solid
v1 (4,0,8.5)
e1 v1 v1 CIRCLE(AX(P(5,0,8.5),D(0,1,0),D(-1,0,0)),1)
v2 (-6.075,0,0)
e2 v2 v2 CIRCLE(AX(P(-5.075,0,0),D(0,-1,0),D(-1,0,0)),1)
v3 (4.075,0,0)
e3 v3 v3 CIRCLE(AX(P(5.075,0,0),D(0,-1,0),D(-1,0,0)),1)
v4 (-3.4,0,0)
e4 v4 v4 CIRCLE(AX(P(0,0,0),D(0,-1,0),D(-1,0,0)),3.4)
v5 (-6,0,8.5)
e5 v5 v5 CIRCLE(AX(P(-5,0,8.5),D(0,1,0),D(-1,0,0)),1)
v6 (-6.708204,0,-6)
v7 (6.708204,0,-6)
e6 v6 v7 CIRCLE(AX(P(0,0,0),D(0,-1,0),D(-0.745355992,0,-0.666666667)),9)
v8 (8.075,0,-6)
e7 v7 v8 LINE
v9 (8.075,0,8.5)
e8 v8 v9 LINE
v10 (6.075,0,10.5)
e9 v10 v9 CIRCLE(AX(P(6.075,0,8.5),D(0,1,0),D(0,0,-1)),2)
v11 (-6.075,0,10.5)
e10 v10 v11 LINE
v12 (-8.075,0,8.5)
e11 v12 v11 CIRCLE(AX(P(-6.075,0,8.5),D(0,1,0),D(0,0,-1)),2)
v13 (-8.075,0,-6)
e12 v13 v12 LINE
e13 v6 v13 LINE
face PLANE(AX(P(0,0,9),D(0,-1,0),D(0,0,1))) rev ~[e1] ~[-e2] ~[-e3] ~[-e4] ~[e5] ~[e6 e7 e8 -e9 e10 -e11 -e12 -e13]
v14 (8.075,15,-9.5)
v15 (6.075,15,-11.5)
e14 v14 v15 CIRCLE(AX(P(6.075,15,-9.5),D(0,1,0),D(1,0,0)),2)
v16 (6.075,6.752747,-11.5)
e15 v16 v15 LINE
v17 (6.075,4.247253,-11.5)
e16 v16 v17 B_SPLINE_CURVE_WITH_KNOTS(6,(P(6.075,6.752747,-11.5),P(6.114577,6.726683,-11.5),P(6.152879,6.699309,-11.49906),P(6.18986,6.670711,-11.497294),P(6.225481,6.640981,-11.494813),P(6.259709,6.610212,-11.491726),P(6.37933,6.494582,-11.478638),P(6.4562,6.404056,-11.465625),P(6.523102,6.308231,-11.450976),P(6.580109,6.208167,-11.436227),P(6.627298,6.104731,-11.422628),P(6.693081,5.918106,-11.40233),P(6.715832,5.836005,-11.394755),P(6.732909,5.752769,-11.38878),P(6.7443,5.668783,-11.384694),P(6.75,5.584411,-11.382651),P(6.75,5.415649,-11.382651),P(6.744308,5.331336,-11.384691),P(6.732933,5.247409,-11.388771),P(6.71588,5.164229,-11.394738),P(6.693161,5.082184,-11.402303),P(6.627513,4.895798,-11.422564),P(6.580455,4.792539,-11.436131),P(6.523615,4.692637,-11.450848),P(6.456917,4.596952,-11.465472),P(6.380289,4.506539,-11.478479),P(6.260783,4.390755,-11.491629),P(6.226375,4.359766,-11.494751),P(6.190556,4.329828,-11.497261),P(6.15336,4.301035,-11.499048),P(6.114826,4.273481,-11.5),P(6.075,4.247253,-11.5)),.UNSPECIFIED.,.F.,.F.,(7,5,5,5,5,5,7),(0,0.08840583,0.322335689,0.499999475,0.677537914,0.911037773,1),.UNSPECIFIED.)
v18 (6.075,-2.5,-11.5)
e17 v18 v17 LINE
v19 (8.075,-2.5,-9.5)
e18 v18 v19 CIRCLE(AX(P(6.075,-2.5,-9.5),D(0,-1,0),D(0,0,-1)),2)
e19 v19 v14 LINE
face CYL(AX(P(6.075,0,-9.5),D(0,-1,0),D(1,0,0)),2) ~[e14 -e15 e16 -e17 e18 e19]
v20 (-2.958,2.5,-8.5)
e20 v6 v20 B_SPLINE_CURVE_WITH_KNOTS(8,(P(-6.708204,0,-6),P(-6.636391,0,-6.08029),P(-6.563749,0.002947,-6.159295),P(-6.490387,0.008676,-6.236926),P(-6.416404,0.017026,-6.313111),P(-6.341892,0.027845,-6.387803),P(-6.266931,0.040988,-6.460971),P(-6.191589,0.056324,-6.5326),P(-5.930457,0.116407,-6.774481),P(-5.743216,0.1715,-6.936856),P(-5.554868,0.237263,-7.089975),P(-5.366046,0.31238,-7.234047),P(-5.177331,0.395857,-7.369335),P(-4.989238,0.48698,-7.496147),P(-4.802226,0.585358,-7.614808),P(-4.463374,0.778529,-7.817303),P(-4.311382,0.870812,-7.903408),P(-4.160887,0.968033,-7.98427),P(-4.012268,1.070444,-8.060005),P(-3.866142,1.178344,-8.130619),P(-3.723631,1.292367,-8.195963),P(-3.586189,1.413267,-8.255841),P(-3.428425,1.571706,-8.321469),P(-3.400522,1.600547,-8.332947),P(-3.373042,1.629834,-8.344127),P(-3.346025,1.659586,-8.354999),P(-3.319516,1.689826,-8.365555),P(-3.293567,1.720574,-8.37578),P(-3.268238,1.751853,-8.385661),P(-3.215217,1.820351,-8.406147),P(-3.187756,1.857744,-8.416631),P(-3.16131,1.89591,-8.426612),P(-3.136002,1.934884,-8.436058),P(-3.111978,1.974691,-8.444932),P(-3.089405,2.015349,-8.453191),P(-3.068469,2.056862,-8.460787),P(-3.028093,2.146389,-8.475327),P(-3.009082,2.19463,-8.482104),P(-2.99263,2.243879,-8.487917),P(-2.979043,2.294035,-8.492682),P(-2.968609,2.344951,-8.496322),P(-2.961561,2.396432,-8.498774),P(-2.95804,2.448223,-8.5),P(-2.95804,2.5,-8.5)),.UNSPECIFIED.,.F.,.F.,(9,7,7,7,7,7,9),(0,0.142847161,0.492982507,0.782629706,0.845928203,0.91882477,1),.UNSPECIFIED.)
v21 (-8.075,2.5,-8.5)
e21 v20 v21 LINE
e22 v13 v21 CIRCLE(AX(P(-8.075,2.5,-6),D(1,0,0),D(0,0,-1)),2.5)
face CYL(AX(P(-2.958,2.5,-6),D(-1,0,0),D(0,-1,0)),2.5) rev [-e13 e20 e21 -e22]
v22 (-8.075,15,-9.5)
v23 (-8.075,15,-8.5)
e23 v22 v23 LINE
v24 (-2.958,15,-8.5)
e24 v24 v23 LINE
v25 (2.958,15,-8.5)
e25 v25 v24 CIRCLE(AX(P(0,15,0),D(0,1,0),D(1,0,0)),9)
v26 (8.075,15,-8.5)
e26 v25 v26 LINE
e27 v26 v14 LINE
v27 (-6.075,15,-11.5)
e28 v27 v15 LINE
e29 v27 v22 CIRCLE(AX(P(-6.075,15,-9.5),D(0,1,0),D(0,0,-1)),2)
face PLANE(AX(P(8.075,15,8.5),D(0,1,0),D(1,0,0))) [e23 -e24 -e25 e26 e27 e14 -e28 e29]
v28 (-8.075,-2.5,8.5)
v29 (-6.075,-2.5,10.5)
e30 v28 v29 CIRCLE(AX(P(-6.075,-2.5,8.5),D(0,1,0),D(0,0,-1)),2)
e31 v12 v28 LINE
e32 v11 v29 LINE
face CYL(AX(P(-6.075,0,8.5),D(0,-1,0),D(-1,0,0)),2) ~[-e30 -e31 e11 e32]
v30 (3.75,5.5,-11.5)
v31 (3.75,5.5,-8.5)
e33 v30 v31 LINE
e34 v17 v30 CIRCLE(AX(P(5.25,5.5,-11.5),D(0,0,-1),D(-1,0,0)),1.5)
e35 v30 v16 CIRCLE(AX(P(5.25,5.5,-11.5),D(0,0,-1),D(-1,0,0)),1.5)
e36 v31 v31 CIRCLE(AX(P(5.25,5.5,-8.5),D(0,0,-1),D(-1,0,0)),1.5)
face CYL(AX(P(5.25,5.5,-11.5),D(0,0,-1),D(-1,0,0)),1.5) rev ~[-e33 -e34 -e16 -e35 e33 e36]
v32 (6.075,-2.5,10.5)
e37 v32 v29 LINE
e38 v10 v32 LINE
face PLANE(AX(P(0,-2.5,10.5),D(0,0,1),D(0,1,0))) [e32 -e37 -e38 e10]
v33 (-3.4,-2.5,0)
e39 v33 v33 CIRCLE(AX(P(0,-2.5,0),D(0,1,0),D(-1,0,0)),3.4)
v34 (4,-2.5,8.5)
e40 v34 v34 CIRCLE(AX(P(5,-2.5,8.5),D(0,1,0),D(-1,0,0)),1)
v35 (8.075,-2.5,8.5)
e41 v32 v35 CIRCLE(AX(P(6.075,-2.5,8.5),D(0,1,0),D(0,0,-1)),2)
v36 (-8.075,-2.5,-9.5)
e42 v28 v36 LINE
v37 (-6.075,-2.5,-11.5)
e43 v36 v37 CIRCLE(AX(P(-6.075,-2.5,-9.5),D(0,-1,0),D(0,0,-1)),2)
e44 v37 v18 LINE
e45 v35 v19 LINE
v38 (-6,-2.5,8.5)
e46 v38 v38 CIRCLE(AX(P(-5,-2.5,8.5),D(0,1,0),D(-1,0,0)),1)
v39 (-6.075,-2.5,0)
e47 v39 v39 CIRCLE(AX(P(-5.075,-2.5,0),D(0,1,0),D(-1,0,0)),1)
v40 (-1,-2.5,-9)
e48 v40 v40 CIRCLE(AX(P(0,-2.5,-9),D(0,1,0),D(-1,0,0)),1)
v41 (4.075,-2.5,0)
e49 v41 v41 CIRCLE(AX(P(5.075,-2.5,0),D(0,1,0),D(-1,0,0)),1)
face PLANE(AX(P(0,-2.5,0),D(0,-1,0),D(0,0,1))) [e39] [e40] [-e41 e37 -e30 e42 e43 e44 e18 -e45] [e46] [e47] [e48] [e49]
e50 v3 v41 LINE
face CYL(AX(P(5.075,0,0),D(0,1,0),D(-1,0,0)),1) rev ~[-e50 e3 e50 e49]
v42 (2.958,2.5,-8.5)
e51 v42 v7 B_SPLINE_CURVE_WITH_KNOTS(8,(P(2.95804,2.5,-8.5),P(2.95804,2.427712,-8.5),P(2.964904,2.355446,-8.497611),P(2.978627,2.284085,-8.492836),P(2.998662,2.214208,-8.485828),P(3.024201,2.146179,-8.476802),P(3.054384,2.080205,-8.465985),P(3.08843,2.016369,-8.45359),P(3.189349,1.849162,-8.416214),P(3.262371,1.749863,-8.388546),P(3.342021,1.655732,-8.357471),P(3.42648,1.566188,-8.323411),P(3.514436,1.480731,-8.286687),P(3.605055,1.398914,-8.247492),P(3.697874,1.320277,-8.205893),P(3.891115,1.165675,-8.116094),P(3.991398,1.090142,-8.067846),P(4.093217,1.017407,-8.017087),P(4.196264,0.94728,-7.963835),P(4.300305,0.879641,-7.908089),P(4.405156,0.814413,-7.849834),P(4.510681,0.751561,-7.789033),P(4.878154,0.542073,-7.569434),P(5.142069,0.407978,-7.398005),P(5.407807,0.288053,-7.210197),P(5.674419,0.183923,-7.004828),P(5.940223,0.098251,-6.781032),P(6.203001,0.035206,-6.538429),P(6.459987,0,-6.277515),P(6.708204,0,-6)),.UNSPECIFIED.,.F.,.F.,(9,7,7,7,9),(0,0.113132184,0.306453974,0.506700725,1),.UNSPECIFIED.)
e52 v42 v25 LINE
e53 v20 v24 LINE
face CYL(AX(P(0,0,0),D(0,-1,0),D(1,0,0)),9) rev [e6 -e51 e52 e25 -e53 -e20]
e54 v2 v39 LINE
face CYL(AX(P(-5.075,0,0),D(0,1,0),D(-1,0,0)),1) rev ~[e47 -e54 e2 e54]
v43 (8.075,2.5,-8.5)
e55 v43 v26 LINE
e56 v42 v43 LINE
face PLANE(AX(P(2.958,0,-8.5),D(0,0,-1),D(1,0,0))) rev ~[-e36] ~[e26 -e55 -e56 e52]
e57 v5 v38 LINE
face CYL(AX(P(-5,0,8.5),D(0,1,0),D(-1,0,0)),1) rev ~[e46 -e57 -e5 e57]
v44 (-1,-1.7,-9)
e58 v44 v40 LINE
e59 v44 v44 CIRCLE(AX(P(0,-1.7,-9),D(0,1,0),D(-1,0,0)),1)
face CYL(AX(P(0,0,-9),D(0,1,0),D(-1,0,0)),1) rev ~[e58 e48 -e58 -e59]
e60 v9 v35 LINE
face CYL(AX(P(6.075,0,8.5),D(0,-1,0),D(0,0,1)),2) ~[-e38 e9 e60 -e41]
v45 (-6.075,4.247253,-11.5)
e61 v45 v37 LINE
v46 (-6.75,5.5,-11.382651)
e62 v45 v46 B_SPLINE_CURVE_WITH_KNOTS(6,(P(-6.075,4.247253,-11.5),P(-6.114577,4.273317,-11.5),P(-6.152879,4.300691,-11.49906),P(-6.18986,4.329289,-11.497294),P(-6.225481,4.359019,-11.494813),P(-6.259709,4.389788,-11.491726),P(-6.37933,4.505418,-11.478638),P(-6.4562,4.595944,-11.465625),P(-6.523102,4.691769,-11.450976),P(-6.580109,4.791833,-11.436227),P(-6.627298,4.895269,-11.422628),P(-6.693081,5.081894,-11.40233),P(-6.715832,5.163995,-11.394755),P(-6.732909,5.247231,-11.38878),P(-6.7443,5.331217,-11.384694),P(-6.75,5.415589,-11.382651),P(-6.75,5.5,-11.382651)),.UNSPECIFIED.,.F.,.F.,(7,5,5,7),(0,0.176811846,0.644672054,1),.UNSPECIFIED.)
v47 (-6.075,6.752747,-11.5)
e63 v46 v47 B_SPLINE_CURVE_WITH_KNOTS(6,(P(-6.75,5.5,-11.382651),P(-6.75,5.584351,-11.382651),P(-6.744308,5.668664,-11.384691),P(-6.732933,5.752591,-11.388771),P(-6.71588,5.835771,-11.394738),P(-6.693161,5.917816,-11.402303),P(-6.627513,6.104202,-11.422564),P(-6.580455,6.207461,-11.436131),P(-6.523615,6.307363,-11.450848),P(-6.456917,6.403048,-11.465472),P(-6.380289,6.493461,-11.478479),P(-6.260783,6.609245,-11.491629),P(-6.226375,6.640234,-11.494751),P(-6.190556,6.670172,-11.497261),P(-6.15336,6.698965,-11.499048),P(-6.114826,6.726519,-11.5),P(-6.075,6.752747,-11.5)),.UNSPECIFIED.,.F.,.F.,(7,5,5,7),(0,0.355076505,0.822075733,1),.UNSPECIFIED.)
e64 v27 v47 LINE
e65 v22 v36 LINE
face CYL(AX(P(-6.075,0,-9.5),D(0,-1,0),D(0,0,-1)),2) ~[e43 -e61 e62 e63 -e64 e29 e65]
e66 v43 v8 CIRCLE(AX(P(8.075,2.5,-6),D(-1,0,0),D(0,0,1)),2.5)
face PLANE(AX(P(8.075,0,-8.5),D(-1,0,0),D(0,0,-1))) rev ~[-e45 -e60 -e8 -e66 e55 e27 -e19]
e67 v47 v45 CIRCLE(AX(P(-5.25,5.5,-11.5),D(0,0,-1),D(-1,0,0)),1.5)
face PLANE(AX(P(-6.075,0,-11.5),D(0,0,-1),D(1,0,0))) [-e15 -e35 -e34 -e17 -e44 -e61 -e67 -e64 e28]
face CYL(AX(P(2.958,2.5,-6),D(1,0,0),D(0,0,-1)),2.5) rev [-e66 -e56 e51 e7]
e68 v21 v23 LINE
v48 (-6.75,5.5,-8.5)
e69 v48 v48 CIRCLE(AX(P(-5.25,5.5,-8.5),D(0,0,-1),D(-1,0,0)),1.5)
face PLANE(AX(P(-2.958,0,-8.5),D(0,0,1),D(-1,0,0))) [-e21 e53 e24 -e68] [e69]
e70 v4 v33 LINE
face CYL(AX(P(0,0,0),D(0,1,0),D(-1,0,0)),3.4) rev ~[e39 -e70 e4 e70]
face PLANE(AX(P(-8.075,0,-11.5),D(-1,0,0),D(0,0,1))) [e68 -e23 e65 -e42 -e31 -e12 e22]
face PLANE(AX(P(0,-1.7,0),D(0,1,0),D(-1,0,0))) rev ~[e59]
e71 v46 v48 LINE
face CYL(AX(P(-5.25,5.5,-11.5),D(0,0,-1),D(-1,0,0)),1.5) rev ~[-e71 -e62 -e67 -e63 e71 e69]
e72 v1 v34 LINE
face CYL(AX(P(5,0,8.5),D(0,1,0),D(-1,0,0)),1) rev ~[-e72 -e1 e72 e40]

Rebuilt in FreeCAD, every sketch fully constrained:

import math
import FreeCAD as App
import Part
import Sketcher

V = App.Vector
Q = App.Units.Quantity


def edges_at(feature, points):
    """Names of the edges that pass closest to the given points."""
    edges = feature.Shape.Edges
    near = lambda p: min(range(len(edges)), key=lambda i: edges[i].distToShape(Part.Vertex(*p))[0])
    return sorted({f"Edge{near(p) + 1}" for p in points})


def add_polygon(sketch, points):
    """Adds a closed chain of lines whose ends are joined by coincident constraints."""
    first, n = sketch.GeometryCount, len(points)
    for a, b in zip(points, points[1:] + points[:1]):
        sketch.addGeometry(Part.LineSegment(App.Vector(*a, 0), App.Vector(*b, 0)), False)
    for i in range(n):
        sketch.addConstraint(Sketcher.Constraint("Coincident", first + i, 2, first + (i + 1) % n, 1))

doc = App.newDocument("Part")
body = doc.addObject("PartDesign::Body", "Body")

# Sketch on YZ plane
sketch1 = body.newObject("Sketcher::SketchObject", "Sketch")
sketch1.AttachmentSupport = (doc.getObject("YZ_Plane"), [""])
sketch1.MapMode = "FlatFace"
add_polygon(sketch1, [(-2.5, 10.5), (-2.5, -11.5), (0, -11.5), (0, 10.5)])  # lines 0-3
sketch1.addConstraint([
    Sketcher.Constraint("Vertical", 0),
    Sketcher.Constraint("Horizontal", 1),
    Sketcher.Constraint("Vertical", 2),
    Sketcher.Constraint("Horizontal", 3),
    Sketcher.Constraint("PointOnObject", 1, 2, -2),
    Sketcher.Constraint("DistanceX", 1, 1, 1, 2, Q("2.5 mm")),
    Sketcher.Constraint("DistanceY", -1, 1, 2, 2, Q("10.5 mm")),
    Sketcher.Constraint("DistanceY", 0, 2, 0, 1, Q("22 mm")),
])
pad1 = body.newObject("PartDesign::Pad", "Pad")
pad1.Profile = sketch1
pad1.Length = 12.15
pad1.Midplane = True

# Sketch on XZ plane
sketch2 = body.newObject("Sketcher::SketchObject", "Sketch001")
sketch2.AttachmentSupport = (doc.getObject("XZ_Plane"), [""])
sketch2.MapMode = "FlatFace"
add_polygon(sketch2, [(-6.1, -11.5), (-8.1, -11.5), (-8.1, 10.5), (-6.1, 10.5)])  # lines 0-3
add_polygon(sketch2, [(8.1, -11.5), (6.1, -11.5), (6.1, 10.5), (8.1, 10.5)])  # lines 4-7
sketch2.addConstraint([
    Sketcher.Constraint("Horizontal", 0),
    Sketcher.Constraint("Vertical", 1),
    Sketcher.Constraint("Horizontal", 2),
    Sketcher.Constraint("Vertical", 3),
    Sketcher.Constraint("Horizontal", 4),
    Sketcher.Constraint("Vertical", 5),
    Sketcher.Constraint("Horizontal", 6),
    Sketcher.Constraint("Vertical", 7),
    Sketcher.Constraint("Symmetric", 3, 2, 4, 2, -2),
    Sketcher.Constraint("Symmetric", 1, 2, 6, 2, -2),
    Sketcher.Constraint("DistanceX", 0, 2, 0, 1, Q("2 mm")),
    Sketcher.Constraint("DistanceY", 1, 1, 1, 2, Q("22 mm")),
    Sketcher.Constraint("DistanceY", 0, 2, -1, 1, Q("11.5 mm")),
    Sketcher.Constraint("DistanceX", 3, 2, 4, 2, Q("12.15 mm")),
])
pad2 = body.newObject("PartDesign::Pad", "Pad001")
pad2.Profile = sketch2
pad2.Length = 2.5

# Sketch on XZ plane
sketch3 = body.newObject("Sketcher::SketchObject", "Sketch002")
sketch3.AttachmentSupport = (doc.getObject("XZ_Plane"), [""])
sketch3.MapMode = "FlatFace"
sketch3.addGeometry([
    Part.Circle(V(0, -9, 0), V(0, 0, 1), 1),  # 0
    Part.Circle(V(-5.1, 0, 0), V(0, 0, 1), 1),  # 1
    Part.Circle(V(5.1, 0, 0), V(0, 0, 1), 1),  # 2
    Part.Circle(V(0, 0, 0), V(0, 0, 1), 3.4),  # 3
    Part.Circle(V(5, 8.5, 0), V(0, 0, 1), 1),  # 4
    Part.Circle(V(-5, 8.5, 0), V(0, 0, 1), 1),  # 5
], False)
sketch3.addConstraint([
    Sketcher.Constraint("Coincident", 3, 3, -1, 1),
    Sketcher.Constraint("Equal", 0, 1),
    Sketcher.Constraint("Equal", 1, 2),
    Sketcher.Constraint("Equal", 2, 4),
    Sketcher.Constraint("Equal", 4, 5),
    Sketcher.Constraint("Symmetric", 1, 3, 2, 3, -1, 1),
    Sketcher.Constraint("Symmetric", 4, 3, 5, 3, -2),
    Sketcher.Constraint("PointOnObject", 0, 3, -2),
    Sketcher.Constraint("PointOnObject", 1, 3, -1),
    Sketcher.Constraint("Diameter", 0, Q("2 mm")),
    Sketcher.Constraint("Diameter", 3, Q("6.8 mm")),
    Sketcher.Constraint("DistanceY", 0, 3, -1, 1, Q("9 mm")),
    Sketcher.Constraint("DistanceX", 5, 3, 4, 3, Q("10 mm")),
    Sketcher.Constraint("DistanceY", -1, 1, 4, 3, Q("8.5 mm")),
    Sketcher.Constraint("DistanceX", 1, 3, 2, 3, Q("10.15 mm")),
])
pocket1 = body.newObject("PartDesign::Pocket", "Pocket")
pocket1.Profile = sketch3
pocket1.Type = "ThroughAll"
pocket1.Reversed = True
doc.recompute()

fillet = body.newObject("PartDesign::Fillet", "Fillet")
fillet.Base = (pocket1, edges_at(pocket1, [
    (-8.075, -1.25, -11.5),
    (8.075, -1.25, -11.5),
    (8.075, -1.25, 10.5),
    (-8.075, -1.25, 10.5),
]))
fillet.Radius = 2

# Sketch on XZ plane
sketch4 = body.newObject("Sketcher::SketchObject", "Sketch003")
sketch4.AttachmentSupport = (doc.getObject("XZ_Plane"), [""])
sketch4.MapMode = "FlatFace"
sketch4.addGeometry([
    Part.LineSegment(V(3, -8.5, 0), V(8.1, -8.5, 0)),  # 0
    Part.LineSegment(V(8.1, -8.5, 0), V(8.1, -9.5, 0)),  # 1
    Part.ArcOfCircle(Part.Circle(V(6.1, -9.5, 0), V(0, 0, 1), 2), math.radians(-90), math.radians(0)),  # 2
    Part.LineSegment(V(6.1, -11.5, 0), V(-6.1, -11.5, 0)),  # 3
    Part.ArcOfCircle(Part.Circle(V(-6.1, -9.5, 0), V(0, 0, 1), 2), math.radians(180), math.radians(270)),  # 4
    Part.LineSegment(V(-8.1, -9.5, 0), V(-8.1, -8.5, 0)),  # 5
    Part.LineSegment(V(-8.1, -8.5, 0), V(-3, -8.5, 0)),  # 6
    Part.ArcOfCircle(Part.Circle(V(0, 0, 0), V(0, 0, 1), 9), math.radians(-109), math.radians(-71)),  # 7
], False)
sketch4.addConstraint([
    Sketcher.Constraint("Coincident", 0, 2, 1, 1),
    Sketcher.Constraint("Tangent", 1, 2, 2, 2),
    Sketcher.Constraint("Tangent", 2, 1, 3, 1),
    Sketcher.Constraint("Tangent", 3, 2, 4, 2),
    Sketcher.Constraint("Tangent", 4, 1, 5, 1),
    Sketcher.Constraint("Coincident", 5, 2, 6, 1),
    Sketcher.Constraint("Coincident", 6, 2, 7, 1),
    Sketcher.Constraint("Coincident", 7, 2, 0, 1),
    Sketcher.Constraint("Horizontal", 0),
    Sketcher.Constraint("Vertical", 1),
    Sketcher.Constraint("Horizontal", 3),
    Sketcher.Constraint("Vertical", 5),
    Sketcher.Constraint("Horizontal", 6),
    Sketcher.Constraint("Coincident", 7, 3, -1, 1),
    Sketcher.Constraint("Equal", 2, 4),
    Sketcher.Constraint("Symmetric", 0, 2, 5, 2, -2),
    Sketcher.Constraint("Radius", 7, Q("9 mm")),
    Sketcher.Constraint("DistanceY", 1, 2, 1, 1, Q("1 mm")),
    Sketcher.Constraint("Radius", 2, Q("2 mm")),
    Sketcher.Constraint("DistanceX", 3, 2, 3, 1, Q("12.15 mm")),
    Sketcher.Constraint("DistanceY", 2, 3, -1, 1, Q("9.5 mm")),
])
pad3 = body.newObject("PartDesign::Pad", "Pad002")
pad3.Profile = sketch4
pad3.Length = 15
pad3.Reversed = True

# Sketch on XY plane
sketch5 = body.newObject("Sketcher::SketchObject", "Sketch004")
sketch5.AttachmentSupport = (doc.getObject("XY_Plane"), [""])
sketch5.MapMode = "FlatFace"
sketch5.AttachmentOffset = App.Placement(V(0, 0, -11.5), App.Rotation())
sketch5.addGeometry([
    Part.Circle(V(5.2, 5.5, 0), V(0, 0, 1), 1.5),
    Part.Circle(V(-5.2, 5.5, 0), V(0, 0, 1), 1.5),
], False)
sketch5.addConstraint([
    Sketcher.Constraint("Equal", 0, 1),
    Sketcher.Constraint("Symmetric", 0, 3, 1, 3, -2),
    Sketcher.Constraint("Diameter", 0, Q("3 mm")),
    Sketcher.Constraint("DistanceX", 1, 3, 0, 3, Q("10.5 mm")),
    Sketcher.Constraint("DistanceY", -1, 1, 0, 3, Q("5.5 mm")),
])
pocket2 = body.newObject("PartDesign::Pocket", "Pocket001")
pocket2.Profile = sketch5
pocket2.Length = 3
pocket2.Reversed = True
doc.recompute()

fillet2 = body.newObject("PartDesign::Fillet", "Fillet001")
fillet2.Base = (pocket2, edges_at(pocket2, [(5.516, 0, -8.5), (-5.516, 0, -8.5)]))
fillet2.Radius = 2.5

# Sketch on XZ plane
sketch6 = body.newObject("Sketcher::SketchObject", "Sketch005")
sketch6.AttachmentSupport = (doc.getObject("XZ_Plane"), [""])
sketch6.MapMode = "FlatFace"
sketch6.addGeometry(Part.Circle(V(0, -9, 0), V(0, 0, 1), 1), False)
sketch6.addConstraint([
    Sketcher.Constraint("PointOnObject", 0, 3, -2),
    Sketcher.Constraint("Diameter", 0, Q("2 mm")),
    Sketcher.Constraint("DistanceY", 0, 3, -1, 1, Q("9 mm")),
])
pad4 = body.newObject("PartDesign::Pad", "Pad003")
pad4.Profile = sketch6
pad4.Length = 1.7

doc.recompute()
